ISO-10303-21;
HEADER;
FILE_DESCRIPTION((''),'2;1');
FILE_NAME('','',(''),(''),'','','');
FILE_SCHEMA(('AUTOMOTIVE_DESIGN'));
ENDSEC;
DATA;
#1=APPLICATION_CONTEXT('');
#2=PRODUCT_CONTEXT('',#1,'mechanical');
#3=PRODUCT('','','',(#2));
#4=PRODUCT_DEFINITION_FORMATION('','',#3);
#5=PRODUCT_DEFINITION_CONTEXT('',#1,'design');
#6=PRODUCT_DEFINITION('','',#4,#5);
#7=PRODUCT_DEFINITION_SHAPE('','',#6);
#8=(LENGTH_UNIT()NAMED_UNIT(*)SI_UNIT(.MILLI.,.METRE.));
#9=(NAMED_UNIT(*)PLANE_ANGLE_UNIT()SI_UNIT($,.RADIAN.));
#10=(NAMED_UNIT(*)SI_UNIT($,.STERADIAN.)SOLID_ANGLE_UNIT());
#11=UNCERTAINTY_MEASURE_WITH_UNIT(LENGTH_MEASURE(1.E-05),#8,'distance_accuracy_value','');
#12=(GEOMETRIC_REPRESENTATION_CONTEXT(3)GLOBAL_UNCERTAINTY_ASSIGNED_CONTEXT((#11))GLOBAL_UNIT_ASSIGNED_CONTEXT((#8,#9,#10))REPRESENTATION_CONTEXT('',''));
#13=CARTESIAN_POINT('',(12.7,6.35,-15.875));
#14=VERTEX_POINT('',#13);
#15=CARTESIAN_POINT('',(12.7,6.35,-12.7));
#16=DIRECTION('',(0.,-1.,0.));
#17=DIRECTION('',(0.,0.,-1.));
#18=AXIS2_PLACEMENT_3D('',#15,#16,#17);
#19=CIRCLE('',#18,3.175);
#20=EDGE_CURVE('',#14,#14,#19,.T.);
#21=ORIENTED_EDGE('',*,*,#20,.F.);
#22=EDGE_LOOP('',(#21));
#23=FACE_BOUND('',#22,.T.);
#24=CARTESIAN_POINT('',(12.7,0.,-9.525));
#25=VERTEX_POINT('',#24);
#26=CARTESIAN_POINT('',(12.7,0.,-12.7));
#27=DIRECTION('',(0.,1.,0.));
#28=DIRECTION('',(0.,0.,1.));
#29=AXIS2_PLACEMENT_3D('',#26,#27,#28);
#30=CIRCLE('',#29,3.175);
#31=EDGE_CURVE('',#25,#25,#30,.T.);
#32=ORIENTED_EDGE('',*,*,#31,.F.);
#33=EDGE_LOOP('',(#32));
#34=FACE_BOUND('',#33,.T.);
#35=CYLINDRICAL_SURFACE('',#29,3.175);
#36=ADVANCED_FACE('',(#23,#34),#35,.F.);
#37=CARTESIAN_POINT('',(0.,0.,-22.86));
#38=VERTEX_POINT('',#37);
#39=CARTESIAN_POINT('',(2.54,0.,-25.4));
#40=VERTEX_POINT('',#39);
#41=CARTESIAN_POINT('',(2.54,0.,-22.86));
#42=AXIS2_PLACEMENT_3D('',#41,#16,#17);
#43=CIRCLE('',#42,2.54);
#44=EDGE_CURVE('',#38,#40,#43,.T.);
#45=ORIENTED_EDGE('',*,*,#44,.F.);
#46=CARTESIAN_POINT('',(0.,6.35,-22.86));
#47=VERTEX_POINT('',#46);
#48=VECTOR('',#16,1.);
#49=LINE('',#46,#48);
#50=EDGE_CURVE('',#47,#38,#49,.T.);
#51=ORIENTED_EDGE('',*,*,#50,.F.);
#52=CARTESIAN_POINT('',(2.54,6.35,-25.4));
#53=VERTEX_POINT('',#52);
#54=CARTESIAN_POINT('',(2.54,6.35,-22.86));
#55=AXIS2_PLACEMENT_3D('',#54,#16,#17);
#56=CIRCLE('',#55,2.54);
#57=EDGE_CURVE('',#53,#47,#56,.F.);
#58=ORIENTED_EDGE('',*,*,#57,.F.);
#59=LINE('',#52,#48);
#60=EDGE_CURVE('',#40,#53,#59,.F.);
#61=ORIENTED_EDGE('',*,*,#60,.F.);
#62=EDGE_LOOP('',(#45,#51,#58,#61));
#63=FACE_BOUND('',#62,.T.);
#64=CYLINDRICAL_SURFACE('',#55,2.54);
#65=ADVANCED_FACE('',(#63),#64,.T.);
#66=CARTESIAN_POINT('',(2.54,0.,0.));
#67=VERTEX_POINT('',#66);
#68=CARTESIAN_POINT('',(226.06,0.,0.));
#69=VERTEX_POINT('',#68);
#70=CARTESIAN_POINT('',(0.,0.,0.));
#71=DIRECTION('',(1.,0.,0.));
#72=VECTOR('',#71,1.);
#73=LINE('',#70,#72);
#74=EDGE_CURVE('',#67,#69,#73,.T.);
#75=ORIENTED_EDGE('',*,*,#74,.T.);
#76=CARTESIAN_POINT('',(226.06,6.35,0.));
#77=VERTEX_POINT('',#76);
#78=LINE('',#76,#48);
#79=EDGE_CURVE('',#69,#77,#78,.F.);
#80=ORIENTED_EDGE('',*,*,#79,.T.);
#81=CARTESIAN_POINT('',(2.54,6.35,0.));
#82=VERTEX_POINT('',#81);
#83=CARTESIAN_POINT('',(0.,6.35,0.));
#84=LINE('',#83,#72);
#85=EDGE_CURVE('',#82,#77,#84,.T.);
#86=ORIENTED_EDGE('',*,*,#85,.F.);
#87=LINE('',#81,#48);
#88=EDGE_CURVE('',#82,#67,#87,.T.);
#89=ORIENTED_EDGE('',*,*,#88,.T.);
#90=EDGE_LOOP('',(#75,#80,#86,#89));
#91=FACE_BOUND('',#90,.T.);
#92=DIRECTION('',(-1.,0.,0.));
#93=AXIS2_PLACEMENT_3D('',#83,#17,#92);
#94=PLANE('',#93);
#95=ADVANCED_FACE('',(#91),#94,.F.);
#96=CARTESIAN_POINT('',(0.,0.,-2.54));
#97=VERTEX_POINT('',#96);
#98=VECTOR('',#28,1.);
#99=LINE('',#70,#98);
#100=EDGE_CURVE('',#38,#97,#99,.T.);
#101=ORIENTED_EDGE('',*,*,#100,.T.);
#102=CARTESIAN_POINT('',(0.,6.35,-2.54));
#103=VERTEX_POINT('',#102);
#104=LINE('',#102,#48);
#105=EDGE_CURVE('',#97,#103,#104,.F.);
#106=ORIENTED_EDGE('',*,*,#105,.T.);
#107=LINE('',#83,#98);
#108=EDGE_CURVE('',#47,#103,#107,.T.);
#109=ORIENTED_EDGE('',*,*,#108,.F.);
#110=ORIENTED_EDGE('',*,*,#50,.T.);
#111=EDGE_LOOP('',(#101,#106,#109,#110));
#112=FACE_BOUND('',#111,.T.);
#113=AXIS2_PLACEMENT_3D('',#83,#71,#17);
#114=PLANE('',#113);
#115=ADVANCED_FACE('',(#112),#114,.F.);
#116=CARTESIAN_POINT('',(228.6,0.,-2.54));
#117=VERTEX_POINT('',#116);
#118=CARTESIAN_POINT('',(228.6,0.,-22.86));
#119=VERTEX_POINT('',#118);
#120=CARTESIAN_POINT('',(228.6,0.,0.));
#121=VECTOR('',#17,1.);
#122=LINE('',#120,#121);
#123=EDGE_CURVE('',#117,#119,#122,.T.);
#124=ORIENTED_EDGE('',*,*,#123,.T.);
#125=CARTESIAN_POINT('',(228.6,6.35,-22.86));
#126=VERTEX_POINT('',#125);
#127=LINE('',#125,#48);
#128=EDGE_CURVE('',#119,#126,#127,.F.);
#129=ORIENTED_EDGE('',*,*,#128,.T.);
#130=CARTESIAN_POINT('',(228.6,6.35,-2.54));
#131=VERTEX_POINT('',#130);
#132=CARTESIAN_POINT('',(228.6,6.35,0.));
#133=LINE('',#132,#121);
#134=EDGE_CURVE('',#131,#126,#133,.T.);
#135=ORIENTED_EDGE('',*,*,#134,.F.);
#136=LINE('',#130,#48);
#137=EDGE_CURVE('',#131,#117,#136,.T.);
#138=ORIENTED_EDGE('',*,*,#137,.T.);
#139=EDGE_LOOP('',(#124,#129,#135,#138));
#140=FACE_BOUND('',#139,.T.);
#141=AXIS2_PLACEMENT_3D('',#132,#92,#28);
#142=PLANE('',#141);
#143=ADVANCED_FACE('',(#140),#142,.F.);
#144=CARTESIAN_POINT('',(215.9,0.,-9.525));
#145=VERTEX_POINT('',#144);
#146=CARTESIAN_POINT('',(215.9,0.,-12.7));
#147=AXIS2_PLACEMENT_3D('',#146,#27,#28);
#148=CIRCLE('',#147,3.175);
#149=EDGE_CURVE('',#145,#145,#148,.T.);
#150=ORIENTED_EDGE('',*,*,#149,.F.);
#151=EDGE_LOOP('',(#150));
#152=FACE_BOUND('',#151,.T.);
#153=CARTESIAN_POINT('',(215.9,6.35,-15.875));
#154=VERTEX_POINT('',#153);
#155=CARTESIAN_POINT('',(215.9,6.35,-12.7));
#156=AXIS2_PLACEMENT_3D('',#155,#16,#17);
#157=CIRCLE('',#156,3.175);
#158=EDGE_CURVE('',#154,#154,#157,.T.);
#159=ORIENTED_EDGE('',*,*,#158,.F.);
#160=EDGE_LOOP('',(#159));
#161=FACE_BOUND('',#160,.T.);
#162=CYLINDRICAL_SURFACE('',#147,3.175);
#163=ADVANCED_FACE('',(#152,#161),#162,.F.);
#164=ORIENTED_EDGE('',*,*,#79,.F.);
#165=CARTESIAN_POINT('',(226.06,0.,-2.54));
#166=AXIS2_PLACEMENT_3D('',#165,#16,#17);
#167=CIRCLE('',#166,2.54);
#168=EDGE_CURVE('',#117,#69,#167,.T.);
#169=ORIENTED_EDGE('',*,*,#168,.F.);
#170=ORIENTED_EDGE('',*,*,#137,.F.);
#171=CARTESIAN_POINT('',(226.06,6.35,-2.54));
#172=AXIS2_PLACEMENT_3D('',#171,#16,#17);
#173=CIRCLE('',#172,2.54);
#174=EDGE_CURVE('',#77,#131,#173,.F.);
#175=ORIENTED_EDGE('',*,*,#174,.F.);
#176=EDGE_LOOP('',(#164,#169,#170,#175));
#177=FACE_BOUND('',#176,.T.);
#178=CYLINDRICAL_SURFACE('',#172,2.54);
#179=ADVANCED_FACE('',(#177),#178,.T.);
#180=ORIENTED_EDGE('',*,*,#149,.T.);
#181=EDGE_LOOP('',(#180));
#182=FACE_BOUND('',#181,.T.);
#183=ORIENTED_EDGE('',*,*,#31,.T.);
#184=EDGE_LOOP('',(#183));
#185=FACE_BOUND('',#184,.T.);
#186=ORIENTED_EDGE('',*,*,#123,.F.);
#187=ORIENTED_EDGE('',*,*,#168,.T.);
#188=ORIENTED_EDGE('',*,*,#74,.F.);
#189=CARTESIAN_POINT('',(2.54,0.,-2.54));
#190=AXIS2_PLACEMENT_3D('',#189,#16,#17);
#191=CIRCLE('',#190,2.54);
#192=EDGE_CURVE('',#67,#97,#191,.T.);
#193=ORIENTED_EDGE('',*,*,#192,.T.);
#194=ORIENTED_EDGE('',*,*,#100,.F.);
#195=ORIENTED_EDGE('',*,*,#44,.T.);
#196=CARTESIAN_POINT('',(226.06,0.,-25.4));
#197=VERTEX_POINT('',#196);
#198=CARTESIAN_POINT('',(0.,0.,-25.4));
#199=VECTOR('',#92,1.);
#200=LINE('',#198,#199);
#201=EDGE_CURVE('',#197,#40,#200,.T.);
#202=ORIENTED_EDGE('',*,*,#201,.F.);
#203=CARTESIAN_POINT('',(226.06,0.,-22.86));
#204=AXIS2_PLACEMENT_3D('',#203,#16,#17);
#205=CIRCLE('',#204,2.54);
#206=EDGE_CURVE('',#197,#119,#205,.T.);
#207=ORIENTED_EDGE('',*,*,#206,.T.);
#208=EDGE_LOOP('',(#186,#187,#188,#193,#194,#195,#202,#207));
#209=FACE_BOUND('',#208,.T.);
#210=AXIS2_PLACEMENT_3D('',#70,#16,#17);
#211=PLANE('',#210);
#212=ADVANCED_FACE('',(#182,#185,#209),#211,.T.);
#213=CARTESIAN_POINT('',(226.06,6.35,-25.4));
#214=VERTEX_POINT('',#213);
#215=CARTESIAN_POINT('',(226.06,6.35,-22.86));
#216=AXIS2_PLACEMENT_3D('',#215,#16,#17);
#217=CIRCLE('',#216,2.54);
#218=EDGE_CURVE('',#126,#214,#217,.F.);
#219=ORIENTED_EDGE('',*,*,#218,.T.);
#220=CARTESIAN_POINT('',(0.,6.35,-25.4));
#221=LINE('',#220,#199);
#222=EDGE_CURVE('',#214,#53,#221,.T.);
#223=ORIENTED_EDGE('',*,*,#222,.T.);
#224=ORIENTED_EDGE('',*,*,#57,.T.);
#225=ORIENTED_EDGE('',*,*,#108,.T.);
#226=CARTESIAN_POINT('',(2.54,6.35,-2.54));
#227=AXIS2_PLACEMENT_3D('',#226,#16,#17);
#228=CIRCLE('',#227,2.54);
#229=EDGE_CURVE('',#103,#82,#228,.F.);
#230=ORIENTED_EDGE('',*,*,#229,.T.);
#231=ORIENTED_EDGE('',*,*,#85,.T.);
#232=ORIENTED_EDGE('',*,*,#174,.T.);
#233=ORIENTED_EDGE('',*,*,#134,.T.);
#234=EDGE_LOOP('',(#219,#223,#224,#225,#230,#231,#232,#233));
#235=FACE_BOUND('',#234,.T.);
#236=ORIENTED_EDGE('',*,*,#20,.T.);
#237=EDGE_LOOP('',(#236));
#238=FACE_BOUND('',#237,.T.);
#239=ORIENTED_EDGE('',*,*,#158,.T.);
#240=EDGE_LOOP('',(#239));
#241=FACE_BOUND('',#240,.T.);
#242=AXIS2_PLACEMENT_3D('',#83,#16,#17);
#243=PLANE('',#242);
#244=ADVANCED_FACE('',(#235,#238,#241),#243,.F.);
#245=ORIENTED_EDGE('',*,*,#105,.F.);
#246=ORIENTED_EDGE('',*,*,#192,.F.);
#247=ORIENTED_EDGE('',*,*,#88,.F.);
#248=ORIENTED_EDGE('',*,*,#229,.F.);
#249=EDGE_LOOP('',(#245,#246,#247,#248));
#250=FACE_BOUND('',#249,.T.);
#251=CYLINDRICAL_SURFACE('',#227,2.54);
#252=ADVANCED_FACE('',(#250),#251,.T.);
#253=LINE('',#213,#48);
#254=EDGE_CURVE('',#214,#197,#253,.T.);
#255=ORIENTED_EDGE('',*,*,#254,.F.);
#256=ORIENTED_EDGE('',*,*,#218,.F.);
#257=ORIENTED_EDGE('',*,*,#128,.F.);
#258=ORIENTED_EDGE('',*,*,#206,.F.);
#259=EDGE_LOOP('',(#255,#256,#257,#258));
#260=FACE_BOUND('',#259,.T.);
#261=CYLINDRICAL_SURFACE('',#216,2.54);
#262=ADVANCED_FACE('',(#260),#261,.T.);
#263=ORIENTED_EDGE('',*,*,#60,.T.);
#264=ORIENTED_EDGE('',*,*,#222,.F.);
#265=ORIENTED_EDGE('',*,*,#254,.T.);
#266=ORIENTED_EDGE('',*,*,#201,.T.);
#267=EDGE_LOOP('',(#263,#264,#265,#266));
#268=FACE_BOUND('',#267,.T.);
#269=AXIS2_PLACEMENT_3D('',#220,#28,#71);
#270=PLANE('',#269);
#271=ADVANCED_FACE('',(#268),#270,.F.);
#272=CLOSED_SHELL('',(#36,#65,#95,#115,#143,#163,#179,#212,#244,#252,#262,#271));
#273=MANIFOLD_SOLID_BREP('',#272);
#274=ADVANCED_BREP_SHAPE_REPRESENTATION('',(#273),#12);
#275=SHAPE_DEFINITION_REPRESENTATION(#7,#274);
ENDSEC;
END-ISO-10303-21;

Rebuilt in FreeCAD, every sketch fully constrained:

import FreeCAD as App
import Part
import Sketcher
Q = App.Units.Quantity


def edges_at(feature, points):
    """Names of the edges that pass closest to the given points."""
    edges = feature.Shape.Edges
    near = lambda p: min(range(len(edges)), key=lambda i: edges[i].distToShape(Part.Vertex(*p))[0])
    return sorted({f"Edge{near(p) + 1}" for p in points})


def add_polygon(sketch, points):
    """Adds a closed chain of lines whose ends are joined by coincident constraints."""
    first, n = sketch.GeometryCount, len(points)
    for a, b in zip(points, points[1:] + points[:1]):
        sketch.addGeometry(Part.LineSegment(App.Vector(*a, 0), App.Vector(*b, 0)), False)
    for i in range(n):
        sketch.addConstraint(Sketcher.Constraint("Coincident", first + i, 2, first + (i + 1) % n, 1))

doc = App.newDocument("Part")
body = doc.addObject("PartDesign::Body", "Body")

# Sketch on XZ plane
sketch1 = doc.addObject("Sketcher::SketchObject", "Sketch")
body.addObject(sketch1)
sketch1.AttachmentSupport = (doc.XZ_Plane, [""])
sketch1.MapMode = "FlatFace"
add_polygon(sketch1, [(0, -25), (0, 0), (229, 0), (229, -25)])  # lines 0-3
sketch1.addConstraint([
    Sketcher.Constraint("Vertical", 0),
    Sketcher.Constraint("Horizontal", 1),
    Sketcher.Constraint("Vertical", 2),
    Sketcher.Constraint("Horizontal", 3),
    Sketcher.Constraint("Coincident", 0, 2, -1, 1),
    Sketcher.Constraint("DistanceX", 1, 1, 1, 2, Q("9 in")),
    Sketcher.Constraint("DistanceY", 0, 1, 0, 2, Q("1 in")),
])
pad1 = doc.addObject("PartDesign::Pad", "Pad")
body.addObject(pad1)
pad1.Profile = sketch1
pad1.Length = Q("0.25 in")
pad1.Reversed = True

# Sketch on XZ plane
sketch2 = doc.addObject("Sketcher::SketchObject", "Sketch001")
body.addObject(sketch2)
sketch2.AttachmentSupport = (doc.XZ_Plane, [""])
sketch2.MapMode = "FlatFace"
sketch2.AttachmentOffset = App.Placement(App.Vector(0, 0, -0.25 * 25.4), App.Rotation())
sketch2.addGeometry([
    Part.Circle(App.Vector(12.7, -12.7, 0), App.Vector(0, 0, 1), 3.2),
    Part.Circle(App.Vector(215.9, -12.7, 0), App.Vector(0, 0, 1), 3.2),
], False)
sketch2.addConstraint([
    Sketcher.Constraint("Equal", 0, 1),
    Sketcher.Constraint("Horizontal", 0, 3, 1, 3),
    Sketcher.Constraint("Diameter", 0, Q("0.25 in")),
    Sketcher.Constraint("DistanceX", 0, 3, 1, 3, Q("8 in")),
    Sketcher.Constraint("DistanceX", -1, 1, 0, 3, Q("0.5 in")),
    Sketcher.Constraint("DistanceY", 0, 3, -1, 1, Q("0.5 in")),
])
pocket1 = doc.addObject("PartDesign::Pocket", "Pocket")
body.addObject(pocket1)
pocket1.Profile = sketch2
pocket1.Type = "ThroughAll"
pocket1.Midplane = True
doc.recompute()

fillet = doc.addObject("PartDesign::Fillet", "Fillet")
body.addObject(fillet)
fillet.Base = (pocket1, edges_at(pocket1, [
    (0, 3.175, -25.4),
    (228.6, 3.175, -25.4),
    (228.6, 3.175, 0),
    (0, 3.175, 0),
]))
fillet.Radius = Q("0.1 in")

doc.recompute()
